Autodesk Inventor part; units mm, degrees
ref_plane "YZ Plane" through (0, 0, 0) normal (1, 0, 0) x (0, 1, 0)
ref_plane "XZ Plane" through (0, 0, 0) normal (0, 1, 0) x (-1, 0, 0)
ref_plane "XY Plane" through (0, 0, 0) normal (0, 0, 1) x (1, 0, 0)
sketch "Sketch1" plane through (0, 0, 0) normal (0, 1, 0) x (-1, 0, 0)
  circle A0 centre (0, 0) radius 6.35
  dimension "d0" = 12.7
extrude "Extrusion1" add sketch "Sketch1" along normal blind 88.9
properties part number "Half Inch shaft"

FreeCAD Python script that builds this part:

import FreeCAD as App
import Part
import Sketcher
Q = App.Units.Quantity

doc = App.newDocument("Part")
body = doc.addObject("PartDesign::Body", "Body")

# Sketch on XZ plane
sketch1 = body.newObject("Sketcher::SketchObject", "Sketch")
sketch1.AttachmentSupport = (doc.getObject("XZ_Plane"), [""])
sketch1.MapMode = "FlatFace"
sketch1.addGeometry(Part.Circle(App.Vector(0, 0, 0), App.Vector(0, 0, 1), 6.35), False)
sketch1.addConstraint([
    Sketcher.Constraint("Coincident", 0, 3, -1, 1),
    Sketcher.Constraint("Diameter", 0, Q("0.5 in")),
])
pad1 = body.newObject("PartDesign::Pad", "Pad")
pad1.Profile = sketch1
pad1.Length = Q("3.5 in")
pad1.Reversed = True

doc.recompute()
